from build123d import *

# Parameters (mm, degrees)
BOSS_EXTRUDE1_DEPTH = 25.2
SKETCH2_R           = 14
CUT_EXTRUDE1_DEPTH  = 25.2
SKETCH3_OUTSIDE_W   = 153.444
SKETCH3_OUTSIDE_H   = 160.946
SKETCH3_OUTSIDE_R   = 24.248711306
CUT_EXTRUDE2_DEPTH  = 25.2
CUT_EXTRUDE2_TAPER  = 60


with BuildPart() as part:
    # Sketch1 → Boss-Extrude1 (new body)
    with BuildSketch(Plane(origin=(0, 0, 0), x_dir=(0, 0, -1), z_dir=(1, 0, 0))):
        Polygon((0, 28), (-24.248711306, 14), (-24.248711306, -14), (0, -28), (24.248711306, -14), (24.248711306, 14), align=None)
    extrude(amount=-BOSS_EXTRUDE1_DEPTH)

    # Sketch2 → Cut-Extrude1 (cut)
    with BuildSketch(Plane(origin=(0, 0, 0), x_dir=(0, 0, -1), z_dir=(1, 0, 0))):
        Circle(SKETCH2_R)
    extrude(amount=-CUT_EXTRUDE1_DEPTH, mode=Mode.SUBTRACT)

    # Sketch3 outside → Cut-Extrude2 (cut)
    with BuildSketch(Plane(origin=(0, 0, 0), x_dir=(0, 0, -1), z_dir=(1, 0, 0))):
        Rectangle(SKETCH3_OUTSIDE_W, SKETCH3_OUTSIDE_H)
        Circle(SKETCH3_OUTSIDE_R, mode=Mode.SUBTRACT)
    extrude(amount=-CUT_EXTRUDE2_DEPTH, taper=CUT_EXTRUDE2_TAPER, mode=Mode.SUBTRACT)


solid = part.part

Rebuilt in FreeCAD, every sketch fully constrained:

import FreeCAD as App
import Part
import Sketcher
Q = App.Units.Quantity

doc = App.newDocument("Part")
body = doc.addObject("PartDesign::Body", "Body")

sketch1 = body.newObject("Sketcher::SketchObject", "Sketch")
sketch1.AttachmentSupport = (doc.getObject("YZ_Plane"), [""])
sketch1.MapMode = "FlatFace"
sketch1.addGeometry([
    Part.LineSegment(App.Vector(28, 0, 0), App.Vector(14, 24, 0)),
    Part.LineSegment(App.Vector(14, 24, 0), App.Vector(-14, 24, 0)),
    Part.LineSegment(App.Vector(-14, 24, 0), App.Vector(-28, 0, 0)),
    Part.LineSegment(App.Vector(-28, 0, 0), App.Vector(-14, -24, 0)),
    Part.LineSegment(App.Vector(-14, -24, 0), App.Vector(14, -24, 0)),
    Part.LineSegment(App.Vector(14, -24, 0), App.Vector(28, 0, 0)),
], False)
sketch1.addConstraint([
    Sketcher.Constraint("Coincident", 0, 2, 1, 1),
    Sketcher.Constraint("Coincident", 1, 2, 2, 1),
    Sketcher.Constraint("Coincident", 2, 2, 3, 1),
    Sketcher.Constraint("Coincident", 3, 2, 4, 1),
    Sketcher.Constraint("Coincident", 4, 2, 5, 1),
    Sketcher.Constraint("Coincident", 5, 2, 0, 1),
    Sketcher.Constraint("Horizontal", 1),
    Sketcher.Constraint("Horizontal", 4),
    Sketcher.Constraint("Symmetric", 0, 2, 3, 2, -1, 1),
    Sketcher.Constraint("Symmetric", 2, 2, 5, 2, -1, 1),
    Sketcher.Constraint("PointOnObject", 2, 2, -1),
    Sketcher.Constraint("Parallel", 2, 5),
    Sketcher.Constraint("Vertical", 1, 2, 3, 2),
    Sketcher.Constraint("DistanceX", 1, 2, 1, 1, 28.0),
    Sketcher.Constraint("Angle", 0, Q("120 deg")),
    Sketcher.Constraint("Distance", 0, 28.0),
])
pad1 = body.newObject("PartDesign::Pad", "Pad")
pad1.Profile = sketch1
pad1.Length = 25.2
pad1.Reversed = True

sketch2 = body.newObject("Sketcher::SketchObject", "Sketch001")
sketch2.AttachmentSupport = (doc.getObject("YZ_Plane"), [""])
sketch2.MapMode = "FlatFace"
sketch2.addGeometry(Part.Circle(App.Vector(0, 0, 0), App.Vector(0, 0, 1), 14), False)
sketch2.addConstraint([
    Sketcher.Constraint("Coincident", 0, 3, -1, 1),
    Sketcher.Constraint("Diameter", 0, 28.0),
])
pocket1 = body.newObject("PartDesign::Pocket", "Pocket")
pocket1.Profile = sketch2
pocket1.Length = 25.2

sketch3 = body.newObject("Sketcher::SketchObject", "Sketch002")
sketch3.AttachmentSupport = (doc.getObject("YZ_Plane"), [""])
sketch3.MapMode = "FlatFace"
sketch3.addGeometry([
    Part.LineSegment(App.Vector(80, 77, 0), App.Vector(-80, 77, 0)),
    Part.LineSegment(App.Vector(-80, 77, 0), App.Vector(-80, -77, 0)),
    Part.LineSegment(App.Vector(-80, -77, 0), App.Vector(80, -77, 0)),
    Part.LineSegment(App.Vector(80, -77, 0), App.Vector(80, 77, 0)),
    Part.Circle(App.Vector(0, 0, 0), App.Vector(0, 0, 1), 24),
], False)
sketch3.addConstraint([
    Sketcher.Constraint("Coincident", 0, 2, 1, 1),
    Sketcher.Constraint("Coincident", 1, 2, 2, 1),
    Sketcher.Constraint("Coincident", 2, 2, 3, 1),
    Sketcher.Constraint("Coincident", 3, 2, 0, 1),
    Sketcher.Constraint("Horizontal", 0),
    Sketcher.Constraint("Vertical", 1),
    Sketcher.Constraint("Horizontal", 2),
    Sketcher.Constraint("Vertical", 3),
    Sketcher.Constraint("Coincident", 4, 3, -1, 1),
    Sketcher.Constraint("Symmetric", 0, 2, 2, 2, -1, 1),
    Sketcher.Constraint("DistanceX", 0, 2, 0, 1, 160.946),
    Sketcher.Constraint("DistanceY", 1, 2, 1, 1, 153.444),
    Sketcher.Constraint("Diameter", 4, 48.497423),
])
pocket2 = body.newObject("PartDesign::Pocket", "Pocket001")
pocket2.Profile = sketch3
pocket2.Length = 25.2
pocket2.TaperAngle = 60

doc.recompute()
